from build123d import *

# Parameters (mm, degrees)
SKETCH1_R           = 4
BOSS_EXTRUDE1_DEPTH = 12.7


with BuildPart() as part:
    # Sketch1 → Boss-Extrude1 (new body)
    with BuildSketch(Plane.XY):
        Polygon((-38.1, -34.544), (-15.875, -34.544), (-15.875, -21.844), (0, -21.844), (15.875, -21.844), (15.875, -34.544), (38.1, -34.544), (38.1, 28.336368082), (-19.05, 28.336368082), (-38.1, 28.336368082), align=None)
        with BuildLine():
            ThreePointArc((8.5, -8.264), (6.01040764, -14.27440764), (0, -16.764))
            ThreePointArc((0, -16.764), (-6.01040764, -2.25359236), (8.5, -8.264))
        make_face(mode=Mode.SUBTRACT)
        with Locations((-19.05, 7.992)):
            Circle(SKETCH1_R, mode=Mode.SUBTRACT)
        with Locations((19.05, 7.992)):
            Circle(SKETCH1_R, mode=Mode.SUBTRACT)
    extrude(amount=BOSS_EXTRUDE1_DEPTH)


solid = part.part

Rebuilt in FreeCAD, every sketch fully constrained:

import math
import FreeCAD as App
import Part
import Sketcher
from FreeCAD import Vector
Q = App.Units.Quantity


def add_polygon(sketch, points):
    """Adds a closed chain of lines whose ends are joined by coincident constraints."""
    first, n = sketch.GeometryCount, len(points)
    for a, b in zip(points, points[1:] + points[:1]):
        sketch.addGeometry(Part.LineSegment(App.Vector(*a, 0), App.Vector(*b, 0)), False)
    for i in range(n):
        sketch.addConstraint(Sketcher.Constraint("Coincident", first + i, 2, first + (i + 1) % n, 1))

doc = App.newDocument("Part")
body = doc.addObject("PartDesign::Body", "Body")

sketch1 = body.newObject("Sketcher::SketchObject", "Sketch")
sketch1.AttachmentSupport = (doc.getObject("XY_Plane"), [""])
sketch1.MapMode = "FlatFace"
add_polygon(sketch1, [(-38.1, -34.5), (-15.9, -34.5), (-15.9, -21.8), (15.9, -21.8), (15.9, -34.5), (38.1, -34.5), (38.1, 28.3), (-38.1, 28.3)])
sketch1.addGeometry(Part.ArcOfCircle(Part.Circle(Vector(0, -8.3, 0), Vector(0, 0, 1), 8.5), math.radians(0), math.radians(270)), False)
sketch1.addGeometry(Part.ArcOfCircle(Part.Circle(Vector(0, -8.3, 0), Vector(0, 0, 1), 8.5), math.radians(-90), math.radians(0)), False)
sketch1.addGeometry(Part.Circle(Vector(-19.1, 8, 0), Vector(0, 0, 1), 4), False)
sketch1.addGeometry(Part.Circle(Vector(19.1, 8, 0), Vector(0, 0, 1), 4), False)
sketch1.addConstraint([
    Sketcher.Constraint("Tangent", 8, 1, 9, 2),
    Sketcher.Constraint("Coincident", 9, 1, 8, 2),
    Sketcher.Constraint("Horizontal", 0),
    Sketcher.Constraint("Vertical", 1),
    Sketcher.Constraint("Horizontal", 2),
    Sketcher.Constraint("Vertical", 3),
    Sketcher.Constraint("Horizontal", 4),
    Sketcher.Constraint("Vertical", 5),
    Sketcher.Constraint("Horizontal", 6),
    Sketcher.Constraint("Vertical", 7),
    Sketcher.Constraint("Equal", 10, 11),
    Sketcher.Constraint("Symmetric", 10, 3, 11, 3, -2),
    Sketcher.Constraint("Symmetric", 0, 2, 3, 2, -2),
    Sketcher.Constraint("PointOnObject", 8, 3, -2),
    Sketcher.Constraint("PointOnObject", 9, 1, -2),
    Sketcher.Constraint("Horizontal", 9, 3, 8, 1),
    Sketcher.Constraint("Equal", 0, 4),
    Sketcher.Constraint("DistanceX", 6, 2, 6, 1, Q("3 in")),
    Sketcher.Constraint("DistanceY", 1, 1, 1, 2, Q("0.5 in")),
    Sketcher.Constraint("DistanceX", 2, 1, 2, 2, Q("1.25 in")),
    Sketcher.Constraint("DistanceX", 10, 3, 11, 3, Q("1.5 in")),
    Sketcher.Constraint("DistanceY", 1, 2, 9, 1, Q("0.2 in")),
    Sketcher.Constraint("Diameter", 10, 8.0),
    Sketcher.Constraint("DistanceY", 0, 2, -1, 1, Q("1.36 in")),
    Sketcher.Constraint("Radius", 8, 8.5),
    Sketcher.Constraint("DistanceY", 8, 3, 10, 3, Q("0.64 in")),
    Sketcher.Constraint("DistanceY", 5, 1, 5, 2, 62.880368),
])
pad1 = body.newObject("PartDesign::Pad", "Pad")
pad1.Profile = sketch1
pad1.Length = Q("0.5 in")

doc.recompute()
